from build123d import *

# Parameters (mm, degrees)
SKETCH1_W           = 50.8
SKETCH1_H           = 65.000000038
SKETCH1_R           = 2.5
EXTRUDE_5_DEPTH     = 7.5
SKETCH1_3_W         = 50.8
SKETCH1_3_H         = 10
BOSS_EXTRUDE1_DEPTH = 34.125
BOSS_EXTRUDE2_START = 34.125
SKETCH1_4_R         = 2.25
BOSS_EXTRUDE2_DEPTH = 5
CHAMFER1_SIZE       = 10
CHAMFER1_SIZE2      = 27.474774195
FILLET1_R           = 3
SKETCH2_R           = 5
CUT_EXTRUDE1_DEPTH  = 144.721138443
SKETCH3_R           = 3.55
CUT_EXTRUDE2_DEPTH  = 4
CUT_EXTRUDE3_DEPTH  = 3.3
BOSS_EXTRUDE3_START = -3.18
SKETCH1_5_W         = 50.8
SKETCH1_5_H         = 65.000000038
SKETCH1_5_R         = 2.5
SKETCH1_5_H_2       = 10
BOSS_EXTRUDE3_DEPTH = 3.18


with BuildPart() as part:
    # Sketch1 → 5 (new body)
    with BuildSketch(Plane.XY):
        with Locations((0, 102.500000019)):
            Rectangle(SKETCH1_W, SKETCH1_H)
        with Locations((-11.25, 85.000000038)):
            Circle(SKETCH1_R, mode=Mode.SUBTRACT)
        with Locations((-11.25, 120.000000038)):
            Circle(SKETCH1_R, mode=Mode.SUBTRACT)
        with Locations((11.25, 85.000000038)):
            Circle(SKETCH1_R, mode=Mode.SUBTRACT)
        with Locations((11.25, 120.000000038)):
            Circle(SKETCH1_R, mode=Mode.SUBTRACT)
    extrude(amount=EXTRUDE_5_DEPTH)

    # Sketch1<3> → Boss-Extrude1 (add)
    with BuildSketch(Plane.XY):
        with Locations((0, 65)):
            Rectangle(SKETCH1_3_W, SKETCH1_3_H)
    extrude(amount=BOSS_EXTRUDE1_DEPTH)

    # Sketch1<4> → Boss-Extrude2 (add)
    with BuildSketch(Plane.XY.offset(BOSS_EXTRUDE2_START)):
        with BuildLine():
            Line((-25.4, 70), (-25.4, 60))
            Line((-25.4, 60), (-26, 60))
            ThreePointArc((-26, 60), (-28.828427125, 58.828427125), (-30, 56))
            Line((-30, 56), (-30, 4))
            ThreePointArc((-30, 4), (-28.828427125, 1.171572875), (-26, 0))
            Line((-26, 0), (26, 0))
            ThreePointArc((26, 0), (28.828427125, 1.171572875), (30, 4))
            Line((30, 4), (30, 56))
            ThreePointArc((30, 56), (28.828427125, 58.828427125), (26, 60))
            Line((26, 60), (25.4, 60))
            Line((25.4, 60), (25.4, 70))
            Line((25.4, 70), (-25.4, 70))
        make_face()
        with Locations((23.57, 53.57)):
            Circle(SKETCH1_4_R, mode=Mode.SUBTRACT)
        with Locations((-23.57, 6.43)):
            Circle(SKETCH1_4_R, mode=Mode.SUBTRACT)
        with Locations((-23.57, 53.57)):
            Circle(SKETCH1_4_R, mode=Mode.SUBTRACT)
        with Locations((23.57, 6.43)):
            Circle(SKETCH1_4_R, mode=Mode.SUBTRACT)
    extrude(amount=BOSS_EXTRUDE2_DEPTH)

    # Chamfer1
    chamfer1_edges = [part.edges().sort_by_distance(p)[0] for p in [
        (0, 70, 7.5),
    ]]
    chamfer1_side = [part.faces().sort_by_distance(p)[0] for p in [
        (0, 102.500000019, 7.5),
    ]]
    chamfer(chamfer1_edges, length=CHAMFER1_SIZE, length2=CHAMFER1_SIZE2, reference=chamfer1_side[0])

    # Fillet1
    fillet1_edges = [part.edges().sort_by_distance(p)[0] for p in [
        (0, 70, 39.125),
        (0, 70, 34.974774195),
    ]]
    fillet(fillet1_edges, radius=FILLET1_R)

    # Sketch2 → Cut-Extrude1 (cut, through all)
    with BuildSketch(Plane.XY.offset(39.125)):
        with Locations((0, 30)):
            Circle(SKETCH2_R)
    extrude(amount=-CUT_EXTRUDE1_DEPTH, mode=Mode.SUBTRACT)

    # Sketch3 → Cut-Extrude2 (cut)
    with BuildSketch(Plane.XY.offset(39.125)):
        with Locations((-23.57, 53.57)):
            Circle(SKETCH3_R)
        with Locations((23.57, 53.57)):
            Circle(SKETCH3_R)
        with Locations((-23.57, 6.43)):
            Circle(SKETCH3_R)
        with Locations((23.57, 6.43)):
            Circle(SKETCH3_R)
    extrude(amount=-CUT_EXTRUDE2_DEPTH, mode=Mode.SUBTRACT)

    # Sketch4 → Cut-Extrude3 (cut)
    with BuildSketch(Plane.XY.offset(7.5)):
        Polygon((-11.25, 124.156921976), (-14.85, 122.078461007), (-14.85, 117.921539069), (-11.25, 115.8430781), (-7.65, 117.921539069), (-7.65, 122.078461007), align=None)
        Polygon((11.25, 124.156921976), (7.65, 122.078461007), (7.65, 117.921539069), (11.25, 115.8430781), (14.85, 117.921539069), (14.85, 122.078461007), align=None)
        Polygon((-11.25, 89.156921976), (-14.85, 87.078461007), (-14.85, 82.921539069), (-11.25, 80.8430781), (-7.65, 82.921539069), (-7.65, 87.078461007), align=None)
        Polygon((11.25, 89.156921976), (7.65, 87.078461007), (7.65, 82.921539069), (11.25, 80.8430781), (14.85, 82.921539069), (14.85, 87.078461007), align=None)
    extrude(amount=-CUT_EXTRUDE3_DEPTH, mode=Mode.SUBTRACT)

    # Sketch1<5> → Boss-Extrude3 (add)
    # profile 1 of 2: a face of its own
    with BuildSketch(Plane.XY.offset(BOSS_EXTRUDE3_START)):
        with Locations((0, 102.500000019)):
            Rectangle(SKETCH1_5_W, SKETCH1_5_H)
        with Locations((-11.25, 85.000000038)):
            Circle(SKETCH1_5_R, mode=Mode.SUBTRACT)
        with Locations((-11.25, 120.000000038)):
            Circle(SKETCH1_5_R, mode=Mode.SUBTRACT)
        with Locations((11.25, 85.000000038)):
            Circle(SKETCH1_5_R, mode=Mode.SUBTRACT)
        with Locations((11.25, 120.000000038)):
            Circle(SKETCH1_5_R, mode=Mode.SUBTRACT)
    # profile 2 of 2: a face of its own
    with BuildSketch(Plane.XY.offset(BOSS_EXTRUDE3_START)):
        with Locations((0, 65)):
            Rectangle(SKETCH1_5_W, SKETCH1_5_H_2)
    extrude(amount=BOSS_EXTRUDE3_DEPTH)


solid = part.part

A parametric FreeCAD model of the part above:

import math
import FreeCAD as App
import Part
import Sketcher
Q = App.Units.Quantity


def edges_at(feature, points):
    """Names of the edges that pass closest to the given points."""
    edges = feature.Shape.Edges
    near = lambda p: min(range(len(edges)), key=lambda i: edges[i].distToShape(Part.Vertex(*p))[0])
    return sorted({f"Edge{near(p) + 1}" for p in points})

doc = App.newDocument("Part")
params = doc.addObject("Spreadsheet::Sheet", "Params")
for row, (alias, value) in enumerate([
    ("sketch1_diameter", "5 mm"),
    ("sketch1_height", "65 mm"),
    ("sketch1_width", "50.8 mm"),
    ("pad1_length", "7.5 mm"),
    ("sketch2_height", "10 mm"),
    ("sketch2_width", "50.8 mm"),
    ("pad2_length", "34.125 mm"),
    ("sketch3_radius", "4 mm"),
    ("sketch3_diameter", "4.5 mm"),
    ("sketch3_width", "52 mm"),
    ("sketch3_height", "10 mm"),
    ("sketch3_width2", "0.6 mm"),
    ("pad3_length", "5 mm"),
    ("chamfer_size", "10 mm"),
    ("chamfer_size2", "27.474774 mm"),
    ("fillet_radius", "3 mm"),
    ("sketch4_diameter", "10 mm"),
    ("sketch5_diameter", "7.1 mm"),
    ("pocket2_length", "4 mm"),
    ("pocket3_length", "3.3 mm"),
    ("sketch7_diameter", "5 mm"),
    ("sketch7_height", "75 mm"),
    ("sketch7_width", "50.8 mm"),
    ("pad4_length", "3.18 mm"),
], start=1):
    params.set(f"A{row}", alias)
    params.set(f"B{row}", "=" + value)
    params.setAlias(f"B{row}", alias)

body = doc.addObject("PartDesign::Body", "Body")

sketch1 = doc.addObject("Sketcher::SketchObject", "Sketch")
body.addObject(sketch1)
sketch1.AttachmentSupport = (doc.XY_Plane, [""])
sketch1.MapMode = "FlatFace"
sketch1.addGeometry([
    Part.LineSegment(App.Vector(-25.4, 135, 0), App.Vector(-25.4, 70, 0)),
    Part.LineSegment(App.Vector(-25.4, 70, 0), App.Vector(25.4, 70, 0)),
    Part.LineSegment(App.Vector(25.4, 70, 0), App.Vector(25.4, 135, 0)),
    Part.LineSegment(App.Vector(25.4, 135, 0), App.Vector(-25.4, 135, 0)),
    Part.Circle(App.Vector(-11.2, 85, 0), App.Vector(0, 0, 1), 2.5),
    Part.Circle(App.Vector(11.2, 85, 0), App.Vector(0, 0, 1), 2.5),
    Part.Circle(App.Vector(-11.2, 120, 0), App.Vector(0, 0, 1), 2.5),
    Part.Circle(App.Vector(11.2, 120, 0), App.Vector(0, 0, 1), 2.5),
], False)
sketch1.addConstraint([
    Sketcher.Constraint("Coincident", 0, 2, 1, 1),
    Sketcher.Constraint("Coincident", 1, 2, 2, 1),
    Sketcher.Constraint("Coincident", 2, 2, 3, 1),
    Sketcher.Constraint("Coincident", 3, 2, 0, 1),
    Sketcher.Constraint("Vertical", 0),
    Sketcher.Constraint("Horizontal", 1),
    Sketcher.Constraint("Vertical", 2),
    Sketcher.Constraint("Horizontal", 3),
    Sketcher.Constraint("Equal", 4, 5),
    Sketcher.Constraint("Equal", 5, 6),
    Sketcher.Constraint("Equal", 6, 7),
    Sketcher.Constraint("Symmetric", 4, 3, 5, 3, -2),
    Sketcher.Constraint("Symmetric", 6, 3, 7, 3, -2),
    Sketcher.Constraint("Vertical", 4, 3, 6, 3),
    Sketcher.Constraint("Diameter", 4, Q("5 mm")),
    Sketcher.Constraint("DistanceY", 0, 2, 0, 1, Q("65 mm")),
    Sketcher.Constraint("DistanceX", 1, 1, 1, 2, Q("50.8 mm")),
    Sketcher.Constraint("DistanceY", -1, 1, 4, 3, Q("85 mm")),
    Sketcher.Constraint("DistanceY", -1, 1, 6, 3, Q("120 mm")),
    Sketcher.Constraint("DistanceY", -1, 1, 0, 2, Q("70 mm")),
    Sketcher.Constraint("DistanceX", 0, 2, -1, 1, Q("25.4 mm")),
    Sketcher.Constraint("DistanceX", 4, 3, 5, 3, Q("22.5 mm")),
])
sketch1.setExpression("Constraints[14]", "Params.sketch1_diameter")
sketch1.setExpression("Constraints[15]", "Params.sketch1_height")
sketch1.setExpression("Constraints[16]", "Params.sketch1_width")
pad1 = doc.addObject("PartDesign::Pad", "Pad")
body.addObject(pad1)
pad1.Profile = sketch1
pad1.setExpression("Length", "Params.pad1_length")

sketch2 = doc.addObject("Sketcher::SketchObject", "Sketch001")
body.addObject(sketch2)
sketch2.AttachmentSupport = (doc.XY_Plane, [""])
sketch2.MapMode = "FlatFace"
sketch2.addGeometry([
    Part.LineSegment(App.Vector(-25, 70, 0), App.Vector(-25, 60, 0)),
    Part.LineSegment(App.Vector(-25, 60, 0), App.Vector(25, 60, 0)),
    Part.LineSegment(App.Vector(25, 60, 0), App.Vector(25, 70, 0)),
    Part.LineSegment(App.Vector(25, 70, 0), App.Vector(-25, 70, 0)),
], False)
sketch2.addConstraint([
    Sketcher.Constraint("Coincident", 0, 2, 1, 1),
    Sketcher.Constraint("Coincident", 1, 2, 2, 1),
    Sketcher.Constraint("Coincident", 2, 2, 3, 1),
    Sketcher.Constraint("Coincident", 3, 2, 0, 1),
    Sketcher.Constraint("Vertical", 0),
    Sketcher.Constraint("Horizontal", 1),
    Sketcher.Constraint("Vertical", 2),
    Sketcher.Constraint("Horizontal", 3),
    Sketcher.Constraint("DistanceY", 0, 2, 0, 1, Q("10 mm")),
    Sketcher.Constraint("DistanceX", 1, 1, 1, 2, Q("50.8 mm")),
    Sketcher.Constraint("DistanceY", -1, 1, 0, 2, Q("60 mm")),
    Sketcher.Constraint("DistanceX", 0, 2, -1, 1, Q("25.4 mm")),
])
sketch2.setExpression("Constraints[8]", "Params.sketch2_height")
sketch2.setExpression("Constraints[9]", "Params.sketch2_width")
pad2 = doc.addObject("PartDesign::Pad", "Pad001")
body.addObject(pad2)
pad2.Profile = sketch2
pad2.setExpression("Length", "Params.pad2_length")

sketch3 = doc.addObject("Sketcher::SketchObject", "Sketch002")
body.addObject(sketch3)
sketch3.AttachmentSupport = (doc.XY_Plane, [""])
sketch3.MapMode = "FlatFace"
sketch3.AttachmentOffset = App.Placement(App.Vector(0, 0, 34.125), App.Rotation())
sketch3.addGeometry([
    Part.LineSegment(App.Vector(-25.4, 70, 0), App.Vector(-25.4, 60, 0)),
    Part.LineSegment(App.Vector(-25.4, 60, 0), App.Vector(-26, 60, 0)),
    Part.ArcOfCircle(Part.Circle(App.Vector(-26, 56, 0), App.Vector(0, 0, 1), 4), math.radians(90), math.radians(180)),
    Part.LineSegment(App.Vector(-30, 56, 0), App.Vector(-30, 4, 0)),
    Part.ArcOfCircle(Part.Circle(App.Vector(-26, 4, 0), App.Vector(0, 0, 1), 4), math.radians(180), math.radians(270)),
    Part.LineSegment(App.Vector(-26, 0, 0), App.Vector(26, 0, 0)),
    Part.ArcOfCircle(Part.Circle(App.Vector(26, 4, 0), App.Vector(0, 0, 1), 4), math.radians(-90), math.radians(0)),
    Part.LineSegment(App.Vector(30, 4, 0), App.Vector(30, 56, 0)),
    Part.ArcOfCircle(Part.Circle(App.Vector(26, 56, 0), App.Vector(0, 0, 1), 4), math.radians(0), math.radians(90)),
    Part.LineSegment(App.Vector(26, 60, 0), App.Vector(25.4, 60, 0)),
    Part.LineSegment(App.Vector(25.4, 60, 0), App.Vector(25.4, 70, 0)),
    Part.LineSegment(App.Vector(25.4, 70, 0), App.Vector(-25.4, 70, 0)),
    Part.Circle(App.Vector(-23.6, 6.4, 0), App.Vector(0, 0, 1), 2.2),
    Part.Circle(App.Vector(23.6, 6.4, 0), App.Vector(0, 0, 1), 2.2),
    Part.Circle(App.Vector(-23.6, 53.6, 0), App.Vector(0, 0, 1), 2.2),
    Part.Circle(App.Vector(23.6, 53.6, 0), App.Vector(0, 0, 1), 2.2),
], False)
sketch3.addConstraint([
    Sketcher.Constraint("Coincident", 0, 2, 1, 1),
    Sketcher.Constraint("Tangent", 1, 2, 2, 1),
    Sketcher.Constraint("Tangent", 2, 2, 3, 1),
    Sketcher.Constraint("Tangent", 3, 2, 4, 1),
    Sketcher.Constraint("Tangent", 4, 2, 5, 1),
    Sketcher.Constraint("Tangent", 5, 2, 6, 1),
    Sketcher.Constraint("Tangent", 6, 2, 7, 1),
    Sketcher.Constraint("Tangent", 7, 2, 8, 1),
    Sketcher.Constraint("Tangent", 8, 2, 9, 1),
    Sketcher.Constraint("Coincident", 9, 2, 10, 1),
    Sketcher.Constraint("Coincident", 10, 2, 11, 1),
    Sketcher.Constraint("Coincident", 11, 2, 0, 1),
    Sketcher.Constraint("Vertical", 0),
    Sketcher.Constraint("Horizontal", 1),
    Sketcher.Constraint("Vertical", 3),
    Sketcher.Constraint("Horizontal", 5),
    Sketcher.Constraint("Vertical", 7),
    Sketcher.Constraint("Horizontal", 9),
    Sketcher.Constraint("Vertical", 10),
    Sketcher.Constraint("Horizontal", 11),
    Sketcher.Constraint("Equal", 2, 4),
    Sketcher.Constraint("Equal", 4, 6),
    Sketcher.Constraint("Equal", 6, 8),
    Sketcher.Constraint("Equal", 12, 13),
    Sketcher.Constraint("Equal", 13, 14),
    Sketcher.Constraint("Equal", 14, 15),
    Sketcher.Constraint("Symmetric", 4, 2, 5, 2, -1, 1),
    Sketcher.Constraint("Symmetric", 12, 3, 13, 3, -2),
    Sketcher.Constraint("Symmetric", 14, 3, 15, 3, -2),
    Sketcher.Constraint("Symmetric", 0, 2, 9, 2, -2),
    Sketcher.Constraint("Vertical", 12, 3, 14, 3),
    Sketcher.Constraint("Equal", 5, 3),
    Sketcher.Constraint("Radius", 2, Q("4 mm")),
    Sketcher.Constraint("Diameter", 12, Q("4.5 mm")),
    Sketcher.Constraint("DistanceX", 5, 1, 5, 2, Q("52 mm")),
    Sketcher.Constraint("DistanceY", 0, 2, 0, 1, Q("10 mm")),
    Sketcher.Constraint("DistanceX", 1, 2, 1, 1, Q("0.6 mm")),
    Sketcher.Constraint("DistanceX", 12, 3, -1, 1, Q("23.57 mm")),
    Sketcher.Constraint("DistanceY", -1, 1, 12, 3, Q("6.43 mm")),
    Sketcher.Constraint("DistanceY", -1, 1, 14, 3, Q("53.57 mm")),
])
sketch3.setExpression("Constraints[32]", "Params.sketch3_radius")
sketch3.setExpression("Constraints[33]", "Params.sketch3_diameter")
sketch3.setExpression("Constraints[34]", "Params.sketch3_width")
sketch3.setExpression("Constraints[35]", "Params.sketch3_height")
sketch3.setExpression("Constraints[36]", "Params.sketch3_width2")
pad3 = doc.addObject("PartDesign::Pad", "Pad002")
body.addObject(pad3)
pad3.Profile = sketch3
pad3.setExpression("Length", "Params.pad3_length")
doc.recompute()

chamfer = doc.addObject("PartDesign::Chamfer", "Chamfer")
body.addObject(chamfer)
chamfer.Base = (pad3, edges_at(pad3, [(0, 70, 7.5)]))
chamfer.ChamferType = "Two distances"
chamfer.setExpression("Size", "Params.chamfer_size")
chamfer.setExpression("Size2", "Params.chamfer_size2")
doc.recompute()

fillet = doc.addObject("PartDesign::Fillet", "Fillet")
body.addObject(fillet)
fillet.Base = (chamfer, edges_at(chamfer, [(0, 70, 39.125), (0, 70, 34.975)]))
fillet.setExpression("Radius", "Params.fillet_radius")

sketch4 = doc.addObject("Sketcher::SketchObject", "Sketch003")
body.addObject(sketch4)
sketch4.AttachmentSupport = (doc.XY_Plane, [""])
sketch4.MapMode = "FlatFace"
sketch4.AttachmentOffset = App.Placement(App.Vector(0, 0, 39.125), App.Rotation())
sketch4.addGeometry(Part.Circle(App.Vector(0, 30, 0), App.Vector(0, 0, 1), 5), False)
sketch4.addConstraint([
    Sketcher.Constraint("PointOnObject", 0, 3, -2),
    Sketcher.Constraint("Diameter", 0, Q("10 mm")),
    Sketcher.Constraint("DistanceY", -1, 1, 0, 3, Q("30 mm")),
])
sketch4.setExpression("Constraints[1]", "Params.sketch4_diameter")
pocket1 = doc.addObject("PartDesign::Pocket", "Pocket")
body.addObject(pocket1)
pocket1.Profile = sketch4
pocket1.Type = "ThroughAll"

sketch5 = doc.addObject("Sketcher::SketchObject", "Sketch004")
body.addObject(sketch5)
sketch5.AttachmentSupport = (doc.XY_Plane, [""])
sketch5.MapMode = "FlatFace"
sketch5.AttachmentOffset = App.Placement(App.Vector(0, 0, 39.125), App.Rotation())
sketch5.addGeometry([
    Part.Circle(App.Vector(-23.6, 53.6, 0), App.Vector(0, 0, 1), 3.5),
    Part.Circle(App.Vector(23.6, 53.6, 0), App.Vector(0, 0, 1), 3.5),
    Part.Circle(App.Vector(-23.6, 6.4, 0), App.Vector(0, 0, 1), 3.5),
    Part.Circle(App.Vector(23.6, 6.4, 0), App.Vector(0, 0, 1), 3.5),
], False)
sketch5.addConstraint([
    Sketcher.Constraint("Equal", 0, 1),
    Sketcher.Constraint("Equal", 1, 2),
    Sketcher.Constraint("Equal", 2, 3),
    Sketcher.Constraint("Symmetric", 0, 3, 1, 3, -2),
    Sketcher.Constraint("Symmetric", 2, 3, 3, 3, -2),
    Sketcher.Constraint("Vertical", 0, 3, 2, 3),
    Sketcher.Constraint("Diameter", 0, Q("7.1 mm")),
    Sketcher.Constraint("DistanceX", 0, 3, -1, 1, Q("23.57 mm")),
    Sketcher.Constraint("DistanceY", -1, 1, 0, 3, Q("53.57 mm")),
    Sketcher.Constraint("DistanceY", -1, 1, 2, 3, Q("6.43 mm")),
])
sketch5.setExpression("Constraints[6]", "Params.sketch5_diameter")
pocket2 = doc.addObject("PartDesign::Pocket", "Pocket001")
body.addObject(pocket2)
pocket2.Profile = sketch5
pocket2.setExpression("Length", "Params.pocket2_length")

sketch6 = doc.addObject("Sketcher::SketchObject", "Sketch005")
body.addObject(sketch6)
sketch6.AttachmentSupport = (doc.XY_Plane, [""])
sketch6.MapMode = "FlatFace"
sketch6.AttachmentOffset = App.Placement(App.Vector(0, 0, 7.5), App.Rotation())
sketch6.addGeometry([
    Part.LineSegment(App.Vector(-11.2, 124.2, 0), App.Vector(-14.8, 122.1, 0)),
    Part.LineSegment(App.Vector(-14.8, 122.1, 0), App.Vector(-14.8, 117.9, 0)),
    Part.LineSegment(App.Vector(-14.8, 117.9, 0), App.Vector(-11.2, 115.8, 0)),
    Part.LineSegment(App.Vector(-11.2, 115.8, 0), App.Vector(-7.7, 117.9, 0)),
    Part.LineSegment(App.Vector(-7.7, 117.9, 0), App.Vector(-7.7, 122.1, 0)),
    Part.LineSegment(App.Vector(-7.7, 122.1, 0), App.Vector(-11.2, 124.2, 0)),
    Part.LineSegment(App.Vector(11.2, 124.2, 0), App.Vector(7.7, 122.1, 0)),
    Part.LineSegment(App.Vector(7.7, 122.1, 0), App.Vector(7.7, 117.9, 0)),
    Part.LineSegment(App.Vector(7.7, 117.9, 0), App.Vector(11.2, 115.8, 0)),
    Part.LineSegment(App.Vector(11.2, 115.8, 0), App.Vector(14.8, 117.9, 0)),
    Part.LineSegment(App.Vector(14.8, 117.9, 0), App.Vector(14.8, 122.1, 0)),
    Part.LineSegment(App.Vector(14.8, 122.1, 0), App.Vector(11.2, 124.2, 0)),
    Part.LineSegment(App.Vector(-11.2, 89.2, 0), App.Vector(-14.8, 87.1, 0)),
    Part.LineSegment(App.Vector(-14.8, 87.1, 0), App.Vector(-14.8, 82.9, 0)),
    Part.LineSegment(App.Vector(-14.8, 82.9, 0), App.Vector(-11.2, 80.8, 0)),
    Part.LineSegment(App.Vector(-11.2, 80.8, 0), App.Vector(-7.7, 82.9, 0)),
    Part.LineSegment(App.Vector(-7.7, 82.9, 0), App.Vector(-7.7, 87.1, 0)),
    Part.LineSegment(App.Vector(-7.7, 87.1, 0), App.Vector(-11.2, 89.2, 0)),
    Part.LineSegment(App.Vector(11.2, 89.2, 0), App.Vector(7.7, 87.1, 0)),
    Part.LineSegment(App.Vector(7.7, 87.1, 0), App.Vector(7.7, 82.9, 0)),
    Part.LineSegment(App.Vector(7.7, 82.9, 0), App.Vector(11.2, 80.8, 0)),
    Part.LineSegment(App.Vector(11.2, 80.8, 0), App.Vector(14.8, 82.9, 0)),
    Part.LineSegment(App.Vector(14.8, 82.9, 0), App.Vector(14.8, 87.1, 0)),
    Part.LineSegment(App.Vector(14.8, 87.1, 0), App.Vector(11.2, 89.2, 0)),
], False)
sketch6.addConstraint([
    Sketcher.Constraint("Coincident", 0, 2, 1, 1),
    Sketcher.Constraint("Coincident", 1, 2, 2, 1),
    Sketcher.Constraint("Coincident", 2, 2, 3, 1),
    Sketcher.Constraint("Coincident", 3, 2, 4, 1),
    Sketcher.Constraint("Coincident", 4, 2, 5, 1),
    Sketcher.Constraint("Coincident", 5, 2, 0, 1),
    Sketcher.Constraint("Coincident", 6, 2, 7, 1),
    Sketcher.Constraint("Coincident", 7, 2, 8, 1),
    Sketcher.Constraint("Coincident", 8, 2, 9, 1),
    Sketcher.Constraint("Coincident", 9, 2, 10, 1),
    Sketcher.Constraint("Coincident", 10, 2, 11, 1),
    Sketcher.Constraint("Coincident", 11, 2, 6, 1),
    Sketcher.Constraint("Coincident", 12, 2, 13, 1),
    Sketcher.Constraint("Coincident", 13, 2, 14, 1),
    Sketcher.Constraint("Coincident", 14, 2, 15, 1),
    Sketcher.Constraint("Coincident", 15, 2, 16, 1),
    Sketcher.Constraint("Coincident", 16, 2, 17, 1),
    Sketcher.Constraint("Coincident", 17, 2, 12, 1),
    Sketcher.Constraint("Coincident", 18, 2, 19, 1),
    Sketcher.Constraint("Coincident", 19, 2, 20, 1),
    Sketcher.Constraint("Coincident", 20, 2, 21, 1),
    Sketcher.Constraint("Coincident", 21, 2, 22, 1),
    Sketcher.Constraint("Coincident", 22, 2, 23, 1),
    Sketcher.Constraint("Coincident", 23, 2, 18, 1),
    Sketcher.Constraint("Vertical", 1),
    Sketcher.Constraint("Vertical", 4),
    Sketcher.Constraint("Vertical", 7),
    Sketcher.Constraint("Vertical", 10),
    Sketcher.Constraint("Vertical", 13),
    Sketcher.Constraint("Vertical", 16),
    Sketcher.Constraint("Vertical", 19),
    Sketcher.Constraint("Vertical", 22),
    Sketcher.Constraint("Symmetric", 4, 2, 6, 2, -2),
    Sketcher.Constraint("Symmetric", 2, 2, 8, 2, -2),
    Sketcher.Constraint("Symmetric", 1, 2, 9, 2, -2),
    Sketcher.Constraint("Symmetric", 5, 2, 11, 2, -2),
    Sketcher.Constraint("Symmetric", 16, 2, 18, 2, -2),
    Sketcher.Constraint("Symmetric", 14, 2, 20, 2, -2),
    Sketcher.Constraint("Symmetric", 13, 2, 21, 2, -2),
    Sketcher.Constraint("Symmetric", 17, 2, 23, 2, -2),
    Sketcher.Constraint("Parallel", 0, 3),
    Sketcher.Constraint("Parallel", 2, 5),
    Sketcher.Constraint("Parallel", 3, 6),
    Sketcher.Constraint("Parallel", 5, 8),
    Sketcher.Constraint("Parallel", 8, 11),
    Sketcher.Constraint("Parallel", 9, 12),
    Sketcher.Constraint("Parallel", 11, 14),
    Sketcher.Constraint("Parallel", 12, 15),
    Sketcher.Constraint("Parallel", 14, 17),
    Sketcher.Constraint("Parallel", 17, 20),
    Sketcher.Constraint("Parallel", 20, 23),
    Sketcher.Constraint("Horizontal", 1, 2, 3, 2),
    Sketcher.Constraint("Horizontal", 0, 2, 4, 2),
    Sketcher.Constraint("Horizontal", 13, 2, 15, 2),
    Sketcher.Constraint("Horizontal", 12, 2, 16, 2),
    Sketcher.Constraint("Vertical", 1, 2, 12, 2),
    Sketcher.Constraint("Vertical", 5, 2, 14, 2),
    Sketcher.Constraint("Equal", 10, 13),
    Sketcher.Constraint("Angle", 0, Q("-150 deg")),
    Sketcher.Constraint("DistanceY", 12, 2, 0, 2, Q("35 mm")),
    Sketcher.Constraint("DistanceX", 1, 2, 2, 2, Q("3.6 mm")),
    Sketcher.Constraint("DistanceX", 4, 2, 6, 2, Q("15.3 mm")),
    Sketcher.Constraint("DistanceY", 1, 2, 1, 1, Q("4.156922 mm")),
    Sketcher.Constraint("DistanceY", -1, 1, 0, 2, Q("122.078461 mm")),
])
pocket3 = doc.addObject("PartDesign::Pocket", "Pocket002")
body.addObject(pocket3)
pocket3.Profile = sketch6
pocket3.setExpression("Length", "Params.pocket3_length")

sketch7 = doc.addObject("Sketcher::SketchObject", "Sketch006")
body.addObject(sketch7)
sketch7.AttachmentSupport = (doc.XY_Plane, [""])
sketch7.MapMode = "FlatFace"
sketch7.AttachmentOffset = App.Placement(App.Vector(0, 0, -3.18), App.Rotation())
sketch7.addGeometry([
    Part.LineSegment(App.Vector(-25.4, 135, 0), App.Vector(-25.4, 60, 0)),
    Part.LineSegment(App.Vector(-25.4, 60, 0), App.Vector(25.4, 60, 0)),
    Part.LineSegment(App.Vector(25.4, 60, 0), App.Vector(25.4, 135, 0)),
    Part.LineSegment(App.Vector(25.4, 135, 0), App.Vector(-25.4, 135, 0)),
    Part.Circle(App.Vector(-11.2, 85, 0), App.Vector(0, 0, 1), 2.5),
    Part.Circle(App.Vector(11.2, 85, 0), App.Vector(0, 0, 1), 2.5),
    Part.Circle(App.Vector(-11.2, 120, 0), App.Vector(0, 0, 1), 2.5),
    Part.Circle(App.Vector(11.2, 120, 0), App.Vector(0, 0, 1), 2.5),
], False)
sketch7.addConstraint([
    Sketcher.Constraint("Coincident", 0, 2, 1, 1),
    Sketcher.Constraint("Coincident", 1, 2, 2, 1),
    Sketcher.Constraint("Coincident", 2, 2, 3, 1),
    Sketcher.Constraint("Coincident", 3, 2, 0, 1),
    Sketcher.Constraint("Vertical", 0),
    Sketcher.Constraint("Horizontal", 1),
    Sketcher.Constraint("Vertical", 2),
    Sketcher.Constraint("Horizontal", 3),
    Sketcher.Constraint("Equal", 4, 5),
    Sketcher.Constraint("Equal", 5, 6),
    Sketcher.Constraint("Equal", 6, 7),
    Sketcher.Constraint("Symmetric", 4, 3, 5, 3, -2),
    Sketcher.Constraint("Symmetric", 6, 3, 7, 3, -2),
    Sketcher.Constraint("Vertical", 4, 3, 6, 3),
    Sketcher.Constraint("Diameter", 4, Q("5 mm")),
    Sketcher.Constraint("DistanceY", 0, 2, 0, 1, Q("75 mm")),
    Sketcher.Constraint("DistanceX", 1, 1, 1, 2, Q("50.8 mm")),
    Sketcher.Constraint("DistanceY", -1, 1, 4, 3, Q("85 mm")),
    Sketcher.Constraint("DistanceY", -1, 1, 6, 3, Q("120 mm")),
    Sketcher.Constraint("DistanceY", -1, 1, 0, 2, Q("60 mm")),
    Sketcher.Constraint("DistanceX", 0, 2, -1, 1, Q("25.4 mm")),
    Sketcher.Constraint("DistanceX", 4, 3, 5, 3, Q("22.5 mm")),
])
sketch7.setExpression("Constraints[14]", "Params.sketch7_diameter")
sketch7.setExpression("Constraints[15]", "Params.sketch7_height")
sketch7.setExpression("Constraints[16]", "Params.sketch7_width")
pad4 = doc.addObject("PartDesign::Pad", "Pad003")
body.addObject(pad4)
pad4.Profile = sketch7
pad4.setExpression("Length", "Params.pad4_length")

doc.recompute()
